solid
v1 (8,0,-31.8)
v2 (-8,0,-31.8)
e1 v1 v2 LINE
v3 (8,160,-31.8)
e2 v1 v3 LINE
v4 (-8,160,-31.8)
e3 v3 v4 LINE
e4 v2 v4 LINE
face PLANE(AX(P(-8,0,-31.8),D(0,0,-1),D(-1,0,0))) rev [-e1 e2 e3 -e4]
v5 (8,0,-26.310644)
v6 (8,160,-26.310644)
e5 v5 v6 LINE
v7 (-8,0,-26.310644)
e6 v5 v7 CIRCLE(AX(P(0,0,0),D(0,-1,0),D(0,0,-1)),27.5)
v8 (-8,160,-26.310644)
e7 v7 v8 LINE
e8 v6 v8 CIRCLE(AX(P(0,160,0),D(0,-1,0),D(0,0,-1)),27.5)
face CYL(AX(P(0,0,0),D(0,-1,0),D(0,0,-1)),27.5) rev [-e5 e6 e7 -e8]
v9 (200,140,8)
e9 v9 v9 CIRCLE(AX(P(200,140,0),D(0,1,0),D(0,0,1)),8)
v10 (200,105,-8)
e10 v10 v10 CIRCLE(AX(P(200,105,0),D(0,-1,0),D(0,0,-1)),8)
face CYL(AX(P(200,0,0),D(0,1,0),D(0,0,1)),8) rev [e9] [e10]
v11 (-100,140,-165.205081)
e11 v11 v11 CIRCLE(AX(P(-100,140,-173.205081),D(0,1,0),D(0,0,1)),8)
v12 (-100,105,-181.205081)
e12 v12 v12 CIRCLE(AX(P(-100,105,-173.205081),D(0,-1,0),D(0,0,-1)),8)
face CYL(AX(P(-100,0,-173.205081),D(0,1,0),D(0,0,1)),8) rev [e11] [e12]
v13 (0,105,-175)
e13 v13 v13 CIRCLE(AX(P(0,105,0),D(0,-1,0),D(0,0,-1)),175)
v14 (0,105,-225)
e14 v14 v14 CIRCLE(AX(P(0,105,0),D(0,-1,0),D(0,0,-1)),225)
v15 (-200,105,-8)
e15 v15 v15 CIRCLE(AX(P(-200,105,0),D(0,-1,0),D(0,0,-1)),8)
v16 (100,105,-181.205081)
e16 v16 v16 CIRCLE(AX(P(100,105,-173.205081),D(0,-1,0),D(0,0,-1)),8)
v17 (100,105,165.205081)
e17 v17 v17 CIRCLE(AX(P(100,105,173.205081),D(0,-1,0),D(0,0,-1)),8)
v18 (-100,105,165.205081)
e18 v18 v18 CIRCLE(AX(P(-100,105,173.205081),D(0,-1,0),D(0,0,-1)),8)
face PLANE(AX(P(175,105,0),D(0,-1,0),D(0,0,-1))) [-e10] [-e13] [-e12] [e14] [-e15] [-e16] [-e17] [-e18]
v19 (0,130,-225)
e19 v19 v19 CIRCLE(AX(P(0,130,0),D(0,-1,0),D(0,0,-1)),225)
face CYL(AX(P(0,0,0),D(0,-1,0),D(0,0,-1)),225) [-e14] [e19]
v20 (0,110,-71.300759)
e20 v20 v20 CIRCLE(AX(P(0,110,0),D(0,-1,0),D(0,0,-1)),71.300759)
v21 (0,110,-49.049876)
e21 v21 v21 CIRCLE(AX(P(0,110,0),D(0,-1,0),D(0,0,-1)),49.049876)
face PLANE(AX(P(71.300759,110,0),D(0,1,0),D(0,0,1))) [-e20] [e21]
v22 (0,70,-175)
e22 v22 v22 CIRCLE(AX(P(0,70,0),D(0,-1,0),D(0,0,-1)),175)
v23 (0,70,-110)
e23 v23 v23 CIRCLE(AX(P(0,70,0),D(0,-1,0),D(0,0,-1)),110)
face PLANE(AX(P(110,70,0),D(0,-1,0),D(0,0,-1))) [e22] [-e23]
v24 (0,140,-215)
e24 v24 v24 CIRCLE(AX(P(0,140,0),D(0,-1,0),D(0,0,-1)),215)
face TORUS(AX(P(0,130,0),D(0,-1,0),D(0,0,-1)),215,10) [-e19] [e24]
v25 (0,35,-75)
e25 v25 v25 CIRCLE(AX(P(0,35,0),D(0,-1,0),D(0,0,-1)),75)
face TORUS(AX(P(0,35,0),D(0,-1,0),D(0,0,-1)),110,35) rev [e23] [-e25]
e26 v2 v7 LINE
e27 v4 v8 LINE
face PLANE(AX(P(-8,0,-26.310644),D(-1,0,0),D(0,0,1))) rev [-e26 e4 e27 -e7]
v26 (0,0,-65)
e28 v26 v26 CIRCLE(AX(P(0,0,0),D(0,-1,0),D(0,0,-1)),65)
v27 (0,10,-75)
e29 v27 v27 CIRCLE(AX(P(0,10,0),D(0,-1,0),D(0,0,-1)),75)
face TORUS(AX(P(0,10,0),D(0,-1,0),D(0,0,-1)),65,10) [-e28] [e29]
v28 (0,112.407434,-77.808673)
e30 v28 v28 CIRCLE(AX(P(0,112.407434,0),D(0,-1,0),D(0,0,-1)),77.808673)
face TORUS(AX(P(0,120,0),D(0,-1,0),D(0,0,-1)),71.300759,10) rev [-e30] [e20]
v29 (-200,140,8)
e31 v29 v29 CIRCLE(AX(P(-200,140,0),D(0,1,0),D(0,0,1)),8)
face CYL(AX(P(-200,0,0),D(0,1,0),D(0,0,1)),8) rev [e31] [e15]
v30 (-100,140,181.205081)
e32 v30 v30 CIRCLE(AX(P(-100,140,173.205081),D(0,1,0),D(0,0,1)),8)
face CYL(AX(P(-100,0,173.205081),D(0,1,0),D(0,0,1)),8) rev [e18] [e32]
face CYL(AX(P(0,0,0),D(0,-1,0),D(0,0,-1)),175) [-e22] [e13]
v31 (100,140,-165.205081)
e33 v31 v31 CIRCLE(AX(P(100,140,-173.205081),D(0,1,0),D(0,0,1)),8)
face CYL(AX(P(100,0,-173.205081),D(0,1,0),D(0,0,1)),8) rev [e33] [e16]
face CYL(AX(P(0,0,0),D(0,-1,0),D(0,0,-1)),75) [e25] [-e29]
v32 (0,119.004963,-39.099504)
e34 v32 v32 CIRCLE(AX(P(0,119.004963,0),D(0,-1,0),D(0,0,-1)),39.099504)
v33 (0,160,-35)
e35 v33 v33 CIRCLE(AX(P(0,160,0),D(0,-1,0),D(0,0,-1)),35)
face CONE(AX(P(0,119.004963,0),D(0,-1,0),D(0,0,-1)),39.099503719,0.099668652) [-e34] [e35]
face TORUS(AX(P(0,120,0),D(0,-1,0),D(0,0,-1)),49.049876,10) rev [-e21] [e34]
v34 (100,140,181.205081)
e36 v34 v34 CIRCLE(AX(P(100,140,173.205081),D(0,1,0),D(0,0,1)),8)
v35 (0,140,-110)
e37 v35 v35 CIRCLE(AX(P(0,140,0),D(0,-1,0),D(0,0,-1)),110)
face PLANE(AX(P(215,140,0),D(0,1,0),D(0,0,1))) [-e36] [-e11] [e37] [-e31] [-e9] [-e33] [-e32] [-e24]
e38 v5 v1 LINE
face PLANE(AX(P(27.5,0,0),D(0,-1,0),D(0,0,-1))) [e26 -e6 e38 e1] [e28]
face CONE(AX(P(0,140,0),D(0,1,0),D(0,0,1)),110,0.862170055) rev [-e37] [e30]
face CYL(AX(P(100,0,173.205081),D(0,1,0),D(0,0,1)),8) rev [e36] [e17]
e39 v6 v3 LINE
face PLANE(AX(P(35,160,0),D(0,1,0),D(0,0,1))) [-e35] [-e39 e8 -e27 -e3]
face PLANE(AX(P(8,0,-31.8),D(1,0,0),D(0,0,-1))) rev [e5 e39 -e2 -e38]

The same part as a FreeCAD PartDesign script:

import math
import FreeCAD as App
import Part
import Sketcher

V = App.Vector
Q = App.Units.Quantity

doc = App.newDocument("Part")
body = doc.addObject("PartDesign::Body", "Body")

sketch1 = body.newObject("Sketcher::SketchObject", "Sketch")
sketch1.AttachmentSupport = (doc.getObject("XY_Plane"), [""])
sketch1.MapMode = "FlatFace"
sketch1.addGeometry(Part.LineSegment(V(27.5, 0, 0), V(65, 0, 0)), False)
sketch1.addGeometry(Part.ArcOfCircle(Part.Circle(V(65, 10, 0), V(0, 0, 1), 10), math.radians(-90), math.radians(0)), False)
sketch1.addGeometry(Part.LineSegment(V(75, 10, 0), V(75, 35, 0)), False)
sketch1.addGeometry(Part.ArcOfCircle(Part.Circle(V(110, 35, 0), V(0, 0, 1), 35), math.radians(90), math.radians(180)), False)
sketch1.addGeometry(Part.LineSegment(V(110, 70, 0), V(175, 70, 0)), False)
sketch1.addGeometry(Part.LineSegment(V(175, 70, 0), V(175, 105, 0)), False)
sketch1.addGeometry(Part.LineSegment(V(175, 105, 0), V(225, 105, 0)), False)
sketch1.addGeometry(Part.LineSegment(V(225, 105, 0), V(225, 130, 0)), False)
sketch1.addGeometry(Part.ArcOfCircle(Part.Circle(V(215, 130, 0), V(0, 0, 1), 10), math.radians(0), math.radians(90)), False)
sketch1.addGeometry(Part.LineSegment(V(215, 140, 0), V(110, 140, 0)), False)
sketch1.addGeometry(Part.LineSegment(V(110, 140, 0), V(77.808673, 112.407434, 0)), False)
sketch1.addGeometry(Part.ArcOfCircle(Part.Circle(V(71.300759, 120, 0), V(0, 0, 1), 10), math.radians(-90), math.radians(-49.398705)), False)
sketch1.addGeometry(Part.LineSegment(V(71.300759, 110, 0), V(49.049876, 110, 0)), False)
sketch1.addGeometry(Part.ArcOfCircle(Part.Circle(V(49.049876, 120, 0), V(0, 0, 1), 10), math.radians(-174.289407), math.radians(-90)), False)
sketch1.addGeometry(Part.LineSegment(V(39.099504, 119.004963, 0), V(35, 160, 0)), False)
sketch1.addGeometry(Part.LineSegment(V(35, 160, 0), V(27.5, 160, 0)), False)
sketch1.addGeometry(Part.LineSegment(V(27.5, 160, 0), V(27.5, 0, 0)), False)
sketch1.addConstraint(Sketcher.Constraint("Tangent", 0, 2, 1, 1))
sketch1.addConstraint(Sketcher.Constraint("Tangent", 1, 2, 2, 1))
sketch1.addConstraint(Sketcher.Constraint("Tangent", 2, 2, 3, 2))
sketch1.addConstraint(Sketcher.Constraint("Tangent", 3, 1, 4, 1))
sketch1.addConstraint(Sketcher.Constraint("Coincident", 4, 2, 5, 1))
sketch1.addConstraint(Sketcher.Constraint("Coincident", 5, 2, 6, 1))
sketch1.addConstraint(Sketcher.Constraint("Coincident", 6, 2, 7, 1))
sketch1.addConstraint(Sketcher.Constraint("Tangent", 7, 2, 8, 1))
sketch1.addConstraint(Sketcher.Constraint("Tangent", 8, 2, 9, 1))
sketch1.addConstraint(Sketcher.Constraint("Coincident", 9, 2, 10, 1))
sketch1.addConstraint(Sketcher.Constraint("Tangent", 10, 2, 11, 2))
sketch1.addConstraint(Sketcher.Constraint("Tangent", 11, 1, 12, 1))
sketch1.addConstraint(Sketcher.Constraint("Tangent", 12, 2, 13, 2))
sketch1.addConstraint(Sketcher.Constraint("Tangent", 13, 1, 14, 1))
sketch1.addConstraint(Sketcher.Constraint("Coincident", 14, 2, 15, 1))
sketch1.addConstraint(Sketcher.Constraint("Coincident", 15, 2, 16, 1))
sketch1.addConstraint(Sketcher.Constraint("Coincident", 16, 2, 0, 1))
sketch1.addConstraint(Sketcher.Constraint("Horizontal", 0))
sketch1.addConstraint(Sketcher.Constraint("Vertical", 2))
sketch1.addConstraint(Sketcher.Constraint("Horizontal", 4))
sketch1.addConstraint(Sketcher.Constraint("Vertical", 5))
sketch1.addConstraint(Sketcher.Constraint("Horizontal", 6))
sketch1.addConstraint(Sketcher.Constraint("Vertical", 7))
sketch1.addConstraint(Sketcher.Constraint("Horizontal", 9))
sketch1.addConstraint(Sketcher.Constraint("Horizontal", 12))
sketch1.addConstraint(Sketcher.Constraint("Horizontal", 15))
sketch1.addConstraint(Sketcher.Constraint("Vertical", 16))
sketch1.addConstraint(Sketcher.Constraint("Equal", 1, 8))
sketch1.addConstraint(Sketcher.Constraint("Equal", 8, 11))
sketch1.addConstraint(Sketcher.Constraint("Equal", 11, 13))
sketch1.addConstraint(Sketcher.Constraint("PointOnObject", 0, 2, -1))
sketch1.addConstraint(Sketcher.Constraint("Vertical", 3, 1, 9, 2))
sketch1.addConstraint(Sketcher.Constraint("Equal", 2, 7))
sketch1.addConstraint(Sketcher.Constraint("Radius", 1, Q("10 mm")))
sketch1.addConstraint(Sketcher.Constraint("Radius", 3, Q("35 mm")))
sketch1.addConstraint(Sketcher.Constraint("DistanceX", 4, 1, 4, 2, Q("65 mm")))
sketch1.addConstraint(Sketcher.Constraint("DistanceX", 6, 1, 6, 2, Q("50 mm")))
sketch1.addConstraint(Sketcher.Constraint("DistanceY", 2, 1, 2, 2, Q("25 mm")))
sketch1.addConstraint(Sketcher.Constraint("DistanceY", 5, 1, 5, 2, Q("35 mm")))
sketch1.addConstraint(Sketcher.Constraint("DistanceY", 16, 2, 16, 1, Q("160 mm")))
sketch1.addConstraint(Sketcher.Constraint("DistanceX", 0, 1, 0, 2, Q("37.5 mm")))
sketch1.addConstraint(Sketcher.Constraint("DistanceX", 15, 2, 15, 1, Q("7.5 mm")))
sketch1.addConstraint(Sketcher.Constraint("DistanceX", -1, 1, 1, 3, Q("65 mm")))
sketch1.addConstraint(Sketcher.Constraint("DistanceY", -1, 1, 11, 3, Q("120 mm")))
sketch1.addConstraint(Sketcher.Constraint("Distance", 10, Q("42.398482 mm")))
sketch1.addConstraint(Sketcher.Constraint("DistanceX", 12, 2, 12, 1, Q("22.250884 mm")))
revolution = body.newObject("PartDesign::Revolution", "Revolution")
revolution.Profile = sketch1
revolution.ReferenceAxis = (sketch1, ["V_Axis"])
revolution.Angle = 360

sketch2 = body.newObject("Sketcher::SketchObject", "Sketch001")
sketch2.AttachmentSupport = (doc.getObject("XZ_Plane"), [""])
sketch2.MapMode = "FlatFace"
sketch2.AttachmentOffset = App.Placement(V(0, 0, -140), App.Rotation())
sketch2.addGeometry(Part.Circle(V(200, 0, 0), V(0, 0, 1), 8), False)
sketch2.addGeometry(Part.Circle(V(100, 173.205081, 0), V(0, 0, 1), 8), False)
sketch2.addGeometry(Part.Circle(V(-100, 173.205081, 0), V(0, 0, 1), 8), False)
sketch2.addGeometry(Part.Circle(V(-200, 0, 0), V(0, 0, 1), 8), False)
sketch2.addGeometry(Part.Circle(V(-100, -173.205081, 0), V(0, 0, 1), 8), False)
sketch2.addGeometry(Part.Circle(V(100, -173.205081, 0), V(0, 0, 1), 8), False)
sketch2.addConstraint(Sketcher.Constraint("Equal", 0, 1))
sketch2.addConstraint(Sketcher.Constraint("Equal", 1, 2))
sketch2.addConstraint(Sketcher.Constraint("Equal", 2, 3))
sketch2.addConstraint(Sketcher.Constraint("Equal", 3, 4))
sketch2.addConstraint(Sketcher.Constraint("Equal", 4, 5))
sketch2.addConstraint(Sketcher.Constraint("Symmetric", 0, 3, 3, 3, -1, 1))
sketch2.addConstraint(Sketcher.Constraint("Symmetric", 1, 3, 4, 3, -1, 1))
sketch2.addConstraint(Sketcher.Constraint("Symmetric", 2, 3, 5, 3, -1, 1))
sketch2.addConstraint(Sketcher.Constraint("Symmetric", 1, 3, 2, 3, -2))
sketch2.addConstraint(Sketcher.Constraint("PointOnObject", 0, 3, -1))
sketch2.addConstraint(Sketcher.Constraint("Diameter", 0, Q("16 mm")))
sketch2.addConstraint(Sketcher.Constraint("DistanceX", -1, 1, 0, 3, Q("200 mm")))
sketch2.addConstraint(Sketcher.Constraint("DistanceX", -1, 1, 1, 3, Q("100 mm")))
sketch2.addConstraint(Sketcher.Constraint("DistanceY", -1, 1, 1, 3, Q("173.205081 mm")))
pocket1 = body.newObject("PartDesign::Pocket", "Pocket")
pocket1.Profile = sketch2
pocket1.Type = "ThroughAll"
pocket1.Midplane = True

sketch3 = body.newObject("Sketcher::SketchObject", "Sketch002")
sketch3.AttachmentSupport = (doc.getObject("XZ_Plane"), [""])
sketch3.MapMode = "FlatFace"
sketch3.AttachmentOffset = App.Placement(V(0, 0, -160), App.Rotation())
sketch3.addGeometry(Part.LineSegment(V(-8, -31.8, 0), V(-8, -26.310644, 0)), False)
sketch3.addGeometry(Part.ArcOfCircle(Part.Circle(V(0, 0, 0), V(0, 0, 1), 27.5), math.radians(-106.91239), math.radians(-73.08761)), False)
sketch3.addGeometry(Part.LineSegment(V(8, -26.310644, 0), V(8, -31.8, 0)), False)
sketch3.addGeometry(Part.LineSegment(V(8, -31.8, 0), V(-8, -31.8, 0)), False)
sketch3.addConstraint(Sketcher.Constraint("Coincident", 0, 2, 1, 1))
sketch3.addConstraint(Sketcher.Constraint("Coincident", 1, 2, 2, 1))
sketch3.addConstraint(Sketcher.Constraint("Coincident", 2, 2, 3, 1))
sketch3.addConstraint(Sketcher.Constraint("Coincident", 3, 2, 0, 1))
sketch3.addConstraint(Sketcher.Constraint("Vertical", 0))
sketch3.addConstraint(Sketcher.Constraint("Vertical", 2))
sketch3.addConstraint(Sketcher.Constraint("Horizontal", 3))
sketch3.addConstraint(Sketcher.Constraint("Coincident", 1, 3, -1, 1))
sketch3.addConstraint(Sketcher.Constraint("Horizontal", 0, 2, 1, 2))
sketch3.addConstraint(Sketcher.Constraint("Radius", 1, Q("27.5 mm")))
sketch3.addConstraint(Sketcher.Constraint("DistanceX", 3, 2, 3, 1, Q("16 mm")))
sketch3.addConstraint(Sketcher.Constraint("DistanceY", 2, 2, -1, 1, Q("31.8 mm")))
pocket2 = body.newObject("PartDesign::Pocket", "Pocket001")
pocket2.Profile = sketch3
pocket2.Type = "ThroughAll"
pocket2.Midplane = True

doc.recompute()
